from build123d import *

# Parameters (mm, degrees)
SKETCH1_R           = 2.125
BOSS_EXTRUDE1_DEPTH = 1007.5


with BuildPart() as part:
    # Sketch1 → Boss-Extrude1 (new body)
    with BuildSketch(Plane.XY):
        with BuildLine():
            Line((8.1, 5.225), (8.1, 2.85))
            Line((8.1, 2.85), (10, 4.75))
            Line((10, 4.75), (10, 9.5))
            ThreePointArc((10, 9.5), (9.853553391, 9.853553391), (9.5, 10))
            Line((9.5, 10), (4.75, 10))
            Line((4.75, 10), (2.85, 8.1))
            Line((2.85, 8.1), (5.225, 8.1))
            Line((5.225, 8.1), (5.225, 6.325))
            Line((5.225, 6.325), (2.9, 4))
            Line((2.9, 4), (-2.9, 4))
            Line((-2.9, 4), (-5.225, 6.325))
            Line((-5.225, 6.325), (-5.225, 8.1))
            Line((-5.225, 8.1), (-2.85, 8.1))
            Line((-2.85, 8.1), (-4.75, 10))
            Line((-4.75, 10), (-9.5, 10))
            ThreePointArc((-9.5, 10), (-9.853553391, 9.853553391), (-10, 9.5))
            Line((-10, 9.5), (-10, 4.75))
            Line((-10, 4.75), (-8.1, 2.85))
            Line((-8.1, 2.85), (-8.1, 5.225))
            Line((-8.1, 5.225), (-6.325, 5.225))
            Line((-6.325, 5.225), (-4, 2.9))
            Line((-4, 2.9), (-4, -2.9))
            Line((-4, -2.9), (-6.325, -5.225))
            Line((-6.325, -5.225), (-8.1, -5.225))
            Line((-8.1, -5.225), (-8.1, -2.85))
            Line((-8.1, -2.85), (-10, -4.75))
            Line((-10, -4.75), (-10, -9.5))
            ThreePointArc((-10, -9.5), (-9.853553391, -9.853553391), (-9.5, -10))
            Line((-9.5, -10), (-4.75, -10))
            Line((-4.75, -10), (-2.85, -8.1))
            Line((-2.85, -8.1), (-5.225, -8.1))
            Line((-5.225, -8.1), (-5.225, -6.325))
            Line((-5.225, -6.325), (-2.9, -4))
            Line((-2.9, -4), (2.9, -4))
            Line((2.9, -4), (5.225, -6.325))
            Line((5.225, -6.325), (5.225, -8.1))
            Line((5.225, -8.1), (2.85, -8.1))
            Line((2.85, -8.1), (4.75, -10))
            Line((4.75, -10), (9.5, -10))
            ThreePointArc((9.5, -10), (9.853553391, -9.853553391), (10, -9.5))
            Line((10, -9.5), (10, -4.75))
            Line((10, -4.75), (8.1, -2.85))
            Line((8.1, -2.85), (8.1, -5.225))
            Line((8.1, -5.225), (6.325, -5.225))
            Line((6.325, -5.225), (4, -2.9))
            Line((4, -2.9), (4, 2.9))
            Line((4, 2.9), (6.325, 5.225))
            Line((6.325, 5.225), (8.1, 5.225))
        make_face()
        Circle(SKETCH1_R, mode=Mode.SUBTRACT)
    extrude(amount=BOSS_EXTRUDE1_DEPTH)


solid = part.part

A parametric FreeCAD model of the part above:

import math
import FreeCAD as App
import Part
import Sketcher
from FreeCAD import Vector

doc = App.newDocument("Part")
body = doc.addObject("PartDesign::Body", "Body")

# Sketch on XY plane
sketch1 = body.newObject("Sketcher::SketchObject", "Sketch")
sketch1.AttachmentSupport = (doc.getObject("XY_Plane"), [""])
sketch1.MapMode = "FlatFace"
sketch1.addGeometry(Part.LineSegment(Vector(8.1, 5.225, 0), Vector(8.1, 2.85, 0)), False)
sketch1.addGeometry(Part.LineSegment(Vector(8.1, 2.85, 0), Vector(10, 4.75, 0)), False)
sketch1.addGeometry(Part.LineSegment(Vector(10, 4.75, 0), Vector(10, 9.5, 0)), False)
sketch1.addGeometry(Part.ArcOfCircle(Part.Circle(Vector(9.5, 9.5, 0), Vector(0, 0, 1), 0.5), math.radians(0), math.radians(90)), False)
sketch1.addGeometry(Part.LineSegment(Vector(9.5, 10, 0), Vector(4.75, 10, 0)), False)
sketch1.addGeometry(Part.LineSegment(Vector(4.75, 10, 0), Vector(2.85, 8.1, 0)), False)
sketch1.addGeometry(Part.LineSegment(Vector(2.85, 8.1, 0), Vector(5.225, 8.1, 0)), False)
sketch1.addGeometry(Part.LineSegment(Vector(5.225, 8.1, 0), Vector(5.225, 6.325, 0)), False)
sketch1.addGeometry(Part.LineSegment(Vector(5.225, 6.325, 0), Vector(2.9, 4, 0)), False)
sketch1.addGeometry(Part.LineSegment(Vector(2.9, 4, 0), Vector(-2.9, 4, 0)), False)
sketch1.addGeometry(Part.LineSegment(Vector(-2.9, 4, 0), Vector(-5.225, 6.325, 0)), False)
sketch1.addGeometry(Part.LineSegment(Vector(-5.225, 6.325, 0), Vector(-5.225, 8.1, 0)), False)
sketch1.addGeometry(Part.LineSegment(Vector(-5.225, 8.1, 0), Vector(-2.85, 8.1, 0)), False)
sketch1.addGeometry(Part.LineSegment(Vector(-2.85, 8.1, 0), Vector(-4.75, 10, 0)), False)
sketch1.addGeometry(Part.LineSegment(Vector(-4.75, 10, 0), Vector(-9.5, 10, 0)), False)
sketch1.addGeometry(Part.ArcOfCircle(Part.Circle(Vector(-9.5, 9.5, 0), Vector(0, 0, 1), 0.5), math.radians(90), math.radians(180)), False)
sketch1.addGeometry(Part.LineSegment(Vector(-10, 9.5, 0), Vector(-10, 4.75, 0)), False)
sketch1.addGeometry(Part.LineSegment(Vector(-10, 4.75, 0), Vector(-8.1, 2.85, 0)), False)
sketch1.addGeometry(Part.LineSegment(Vector(-8.1, 2.85, 0), Vector(-8.1, 5.225, 0)), False)
sketch1.addGeometry(Part.LineSegment(Vector(-8.1, 5.225, 0), Vector(-6.325, 5.225, 0)), False)
sketch1.addGeometry(Part.LineSegment(Vector(-6.325, 5.225, 0), Vector(-4, 2.9, 0)), False)
sketch1.addGeometry(Part.LineSegment(Vector(-4, 2.9, 0), Vector(-4, -2.9, 0)), False)
sketch1.addGeometry(Part.LineSegment(Vector(-4, -2.9, 0), Vector(-6.325, -5.225, 0)), False)
sketch1.addGeometry(Part.LineSegment(Vector(-6.325, -5.225, 0), Vector(-8.1, -5.225, 0)), False)
sketch1.addGeometry(Part.LineSegment(Vector(-8.1, -5.225, 0), Vector(-8.1, -2.85, 0)), False)
sketch1.addGeometry(Part.LineSegment(Vector(-8.1, -2.85, 0), Vector(-10, -4.75, 0)), False)
sketch1.addGeometry(Part.LineSegment(Vector(-10, -4.75, 0), Vector(-10, -9.5, 0)), False)
sketch1.addGeometry(Part.ArcOfCircle(Part.Circle(Vector(-9.5, -9.5, 0), Vector(0, 0, 1), 0.5), math.radians(180), math.radians(270)), False)
sketch1.addGeometry(Part.LineSegment(Vector(-9.5, -10, 0), Vector(-4.75, -10, 0)), False)
sketch1.addGeometry(Part.LineSegment(Vector(-4.75, -10, 0), Vector(-2.85, -8.1, 0)), False)
sketch1.addGeometry(Part.LineSegment(Vector(-2.85, -8.1, 0), Vector(-5.225, -8.1, 0)), False)
sketch1.addGeometry(Part.LineSegment(Vector(-5.225, -8.1, 0), Vector(-5.225, -6.325, 0)), False)
sketch1.addGeometry(Part.LineSegment(Vector(-5.225, -6.325, 0), Vector(-2.9, -4, 0)), False)
sketch1.addGeometry(Part.LineSegment(Vector(-2.9, -4, 0), Vector(2.9, -4, 0)), False)
sketch1.addGeometry(Part.LineSegment(Vector(2.9, -4, 0), Vector(5.225, -6.325, 0)), False)
sketch1.addGeometry(Part.LineSegment(Vector(5.225, -6.325, 0), Vector(5.225, -8.1, 0)), False)
sketch1.addGeometry(Part.LineSegment(Vector(5.225, -8.1, 0), Vector(2.85, -8.1, 0)), False)
sketch1.addGeometry(Part.LineSegment(Vector(2.85, -8.1, 0), Vector(4.75, -10, 0)), False)
sketch1.addGeometry(Part.LineSegment(Vector(4.75, -10, 0), Vector(9.5, -10, 0)), False)
sketch1.addGeometry(Part.ArcOfCircle(Part.Circle(Vector(9.5, -9.5, 0), Vector(0, 0, 1), 0.5), math.radians(-90), math.radians(0)), False)
sketch1.addGeometry(Part.LineSegment(Vector(10, -9.5, 0), Vector(10, -4.75, 0)), False)
sketch1.addGeometry(Part.LineSegment(Vector(10, -4.75, 0), Vector(8.1, -2.85, 0)), False)
sketch1.addGeometry(Part.LineSegment(Vector(8.1, -2.85, 0), Vector(8.1, -5.225, 0)), False)
sketch1.addGeometry(Part.LineSegment(Vector(8.1, -5.225, 0), Vector(6.325, -5.225, 0)), False)
sketch1.addGeometry(Part.LineSegment(Vector(6.325, -5.225, 0), Vector(4, -2.9, 0)), False)
sketch1.addGeometry(Part.LineSegment(Vector(4, -2.9, 0), Vector(4, 2.9, 0)), False)
sketch1.addGeometry(Part.LineSegment(Vector(4, 2.9, 0), Vector(6.325, 5.225, 0)), False)
sketch1.addGeometry(Part.LineSegment(Vector(6.325, 5.225, 0), Vector(8.1, 5.225, 0)), False)
sketch1.addGeometry(Part.Circle(Vector(0, 0, 0), Vector(0, 0, 1), 2.125), False)
sketch1.addConstraint(Sketcher.Constraint("Coincident", 0, 2, 1, 1))
sketch1.addConstraint(Sketcher.Constraint("Coincident", 1, 2, 2, 1))
sketch1.addConstraint(Sketcher.Constraint("Tangent", 2, 2, 3, 1))
sketch1.addConstraint(Sketcher.Constraint("Tangent", 3, 2, 4, 1))
sketch1.addConstraint(Sketcher.Constraint("Coincident", 4, 2, 5, 1))
sketch1.addConstraint(Sketcher.Constraint("Coincident", 5, 2, 6, 1))
sketch1.addConstraint(Sketcher.Constraint("Coincident", 6, 2, 7, 1))
sketch1.addConstraint(Sketcher.Constraint("Coincident", 7, 2, 8, 1))
sketch1.addConstraint(Sketcher.Constraint("Coincident", 8, 2, 9, 1))
sketch1.addConstraint(Sketcher.Constraint("Coincident", 9, 2, 10, 1))
sketch1.addConstraint(Sketcher.Constraint("Coincident", 10, 2, 11, 1))
sketch1.addConstraint(Sketcher.Constraint("Coincident", 11, 2, 12, 1))
sketch1.addConstraint(Sketcher.Constraint("Coincident", 12, 2, 13, 1))
sketch1.addConstraint(Sketcher.Constraint("Coincident", 13, 2, 14, 1))
sketch1.addConstraint(Sketcher.Constraint("Tangent", 14, 2, 15, 1))
sketch1.addConstraint(Sketcher.Constraint("Tangent", 15, 2, 16, 1))
sketch1.addConstraint(Sketcher.Constraint("Coincident", 16, 2, 17, 1))
sketch1.addConstraint(Sketcher.Constraint("Coincident", 17, 2, 18, 1))
sketch1.addConstraint(Sketcher.Constraint("Coincident", 18, 2, 19, 1))
sketch1.addConstraint(Sketcher.Constraint("Coincident", 19, 2, 20, 1))
sketch1.addConstraint(Sketcher.Constraint("Coincident", 20, 2, 21, 1))
sketch1.addConstraint(Sketcher.Constraint("Coincident", 21, 2, 22, 1))
sketch1.addConstraint(Sketcher.Constraint("Coincident", 22, 2, 23, 1))
sketch1.addConstraint(Sketcher.Constraint("Coincident", 23, 2, 24, 1))
sketch1.addConstraint(Sketcher.Constraint("Coincident", 24, 2, 25, 1))
sketch1.addConstraint(Sketcher.Constraint("Coincident", 25, 2, 26, 1))
sketch1.addConstraint(Sketcher.Constraint("Tangent", 26, 2, 27, 1))
sketch1.addConstraint(Sketcher.Constraint("Tangent", 27, 2, 28, 1))
sketch1.addConstraint(Sketcher.Constraint("Coincident", 28, 2, 29, 1))
sketch1.addConstraint(Sketcher.Constraint("Coincident", 29, 2, 30, 1))
sketch1.addConstraint(Sketcher.Constraint("Coincident", 30, 2, 31, 1))
sketch1.addConstraint(Sketcher.Constraint("Coincident", 31, 2, 32, 1))
sketch1.addConstraint(Sketcher.Constraint("Coincident", 32, 2, 33, 1))
sketch1.addConstraint(Sketcher.Constraint("Coincident", 33, 2, 34, 1))
sketch1.addConstraint(Sketcher.Constraint("Coincident", 34, 2, 35, 1))
sketch1.addConstraint(Sketcher.Constraint("Coincident", 35, 2, 36, 1))
sketch1.addConstraint(Sketcher.Constraint("Coincident", 36, 2, 37, 1))
sketch1.addConstraint(Sketcher.Constraint("Coincident", 37, 2, 38, 1))
sketch1.addConstraint(Sketcher.Constraint("Tangent", 38, 2, 39, 1))
sketch1.addConstraint(Sketcher.Constraint("Tangent", 39, 2, 40, 1))
sketch1.addConstraint(Sketcher.Constraint("Coincident", 40, 2, 41, 1))
sketch1.addConstraint(Sketcher.Constraint("Coincident", 41, 2, 42, 1))
sketch1.addConstraint(Sketcher.Constraint("Coincident", 42, 2, 43, 1))
sketch1.addConstraint(Sketcher.Constraint("Coincident", 43, 2, 44, 1))
sketch1.addConstraint(Sketcher.Constraint("Coincident", 44, 2, 45, 1))
sketch1.addConstraint(Sketcher.Constraint("Coincident", 45, 2, 46, 1))
sketch1.addConstraint(Sketcher.Constraint("Coincident", 46, 2, 47, 1))
sketch1.addConstraint(Sketcher.Constraint("Coincident", 47, 2, 0, 1))
sketch1.addConstraint(Sketcher.Constraint("Vertical", 0))
sketch1.addConstraint(Sketcher.Constraint("Vertical", 2))
sketch1.addConstraint(Sketcher.Constraint("Horizontal", 4))
sketch1.addConstraint(Sketcher.Constraint("Horizontal", 6))
sketch1.addConstraint(Sketcher.Constraint("Vertical", 7))
sketch1.addConstraint(Sketcher.Constraint("Horizontal", 9))
sketch1.addConstraint(Sketcher.Constraint("Vertical", 11))
sketch1.addConstraint(Sketcher.Constraint("Horizontal", 12))
sketch1.addConstraint(Sketcher.Constraint("Horizontal", 14))
sketch1.addConstraint(Sketcher.Constraint("Vertical", 16))
sketch1.addConstraint(Sketcher.Constraint("Vertical", 18))
sketch1.addConstraint(Sketcher.Constraint("Horizontal", 19))
sketch1.addConstraint(Sketcher.Constraint("Vertical", 21))
sketch1.addConstraint(Sketcher.Constraint("Horizontal", 23))
sketch1.addConstraint(Sketcher.Constraint("Vertical", 24))
sketch1.addConstraint(Sketcher.Constraint("Vertical", 26))
sketch1.addConstraint(Sketcher.Constraint("Horizontal", 28))
sketch1.addConstraint(Sketcher.Constraint("Horizontal", 30))
sketch1.addConstraint(Sketcher.Constraint("Vertical", 31))
sketch1.addConstraint(Sketcher.Constraint("Horizontal", 33))
sketch1.addConstraint(Sketcher.Constraint("Vertical", 35))
sketch1.addConstraint(Sketcher.Constraint("Horizontal", 36))
sketch1.addConstraint(Sketcher.Constraint("Horizontal", 38))
sketch1.addConstraint(Sketcher.Constraint("Vertical", 40))
sketch1.addConstraint(Sketcher.Constraint("Vertical", 42))
sketch1.addConstraint(Sketcher.Constraint("Horizontal", 43))
sketch1.addConstraint(Sketcher.Constraint("Vertical", 45))
sketch1.addConstraint(Sketcher.Constraint("Horizontal", 47))
sketch1.addConstraint(Sketcher.Constraint("Coincident", 48, 3, -1, 1))
sketch1.addConstraint(Sketcher.Constraint("Equal", 3, 15))
sketch1.addConstraint(Sketcher.Constraint("Equal", 15, 27))
sketch1.addConstraint(Sketcher.Constraint("Equal", 27, 39))
sketch1.addConstraint(Sketcher.Constraint("Symmetric", 3, 3, 27, 3, -1, 1))
sketch1.addConstraint(Sketcher.Constraint("Symmetric", 15, 3, 39, 3, -1, 1))
sketch1.addConstraint(Sketcher.Constraint("Symmetric", 0, 2, 24, 2, -1, 1))
sketch1.addConstraint(Sketcher.Constraint("Symmetric", 5, 2, 29, 2, -1, 1))
sketch1.addConstraint(Sketcher.Constraint("Symmetric", 7, 2, 31, 2, -1, 1))
sketch1.addConstraint(Sketcher.Constraint("Symmetric", 8, 2, 32, 2, -1, 1))
sketch1.addConstraint(Sketcher.Constraint("Symmetric", 10, 2, 34, 2, -1, 1))
sketch1.addConstraint(Sketcher.Constraint("Symmetric", 12, 2, 36, 2, -1, 1))
sketch1.addConstraint(Sketcher.Constraint("Symmetric", 17, 2, 41, 2, -1, 1))
sketch1.addConstraint(Sketcher.Constraint("Symmetric", 19, 2, 43, 2, -1, 1))
sketch1.addConstraint(Sketcher.Constraint("Symmetric", 20, 2, 44, 2, -1, 1))
sketch1.addConstraint(Sketcher.Constraint("Symmetric", 22, 2, 46, 2, -1, 1))
sketch1.addConstraint(Sketcher.Constraint("Symmetric", 3, 3, 15, 3, -2))
sketch1.addConstraint(Sketcher.Constraint("Symmetric", 7, 2, 10, 2, -2))
sketch1.addConstraint(Sketcher.Constraint("Symmetric", 5, 2, 12, 2, -2))
sketch1.addConstraint(Sketcher.Constraint("Symmetric", 0, 2, 17, 2, -2))
sketch1.addConstraint(Sketcher.Constraint("Symmetric", 22, 2, 43, 2, -2))
sketch1.addConstraint(Sketcher.Constraint("Parallel", 1, 5))
sketch1.addConstraint(Sketcher.Constraint("Parallel", 5, 8))
sketch1.addConstraint(Sketcher.Constraint("Perpendicular", 8, 10))
sketch1.addConstraint(Sketcher.Constraint("Parallel", 10, 13))
sketch1.addConstraint(Sketcher.Constraint("Parallel", 13, 17))
sketch1.addConstraint(Sketcher.Constraint("Parallel", 17, 20))
sketch1.addConstraint(Sketcher.Constraint("Perpendicular", 20, 22))
sketch1.addConstraint(Sketcher.Constraint("Parallel", 22, 25))
sketch1.addConstraint(Sketcher.Constraint("Parallel", 25, 29))
sketch1.addConstraint(Sketcher.Constraint("Perpendicular", 32, 34))
sketch1.addConstraint(Sketcher.Constraint("Parallel", 34, 37))
sketch1.addConstraint(Sketcher.Constraint("Parallel", 37, 41))
sketch1.addConstraint(Sketcher.Constraint("Perpendicular", 44, 46))
sketch1.addConstraint(Sketcher.Constraint("Horizontal", 1, 2, 16, 2))
sketch1.addConstraint(Sketcher.Constraint("Equal", 36, 0))
sketch1.addConstraint(Sketcher.Constraint("Equal", 38, 2))
sketch1.addConstraint(Sketcher.Constraint("Equal", 47, 7))
sketch1.addConstraint(Sketcher.Constraint("Equal", 33, 21))
sketch1.addConstraint(Sketcher.Constraint("Equal", 1, 5))
sketch1.addConstraint(Sketcher.Constraint("Equal", 10, 20))
sketch1.addConstraint(Sketcher.Constraint("Radius", 3, 0.5))
sketch1.addConstraint(Sketcher.Constraint("Diameter", 48, 4.25))
sketch1.addConstraint(Sketcher.Constraint("DistanceX", 9, 2, 9, 1, 5.8))
sketch1.addConstraint(Sketcher.Constraint("DistanceX", -1, 1, 1, 2, 10.0))
sketch1.addConstraint(Sketcher.Constraint("DistanceY", -1, 1, 8, 2, 4.0))
sketch1.addConstraint(Sketcher.Constraint("DistanceX", 4, 2, 4, 1, 4.75))
sketch1.addConstraint(Sketcher.Constraint("DistanceX", -1, 1, 0, 2, 8.1))
sketch1.addConstraint(Sketcher.Constraint("DistanceX", 6, 1, 6, 2, 2.375))
pad1 = body.newObject("PartDesign::Pad", "Pad")
pad1.Profile = sketch1
pad1.Length = 1007.5

doc.recompute()
